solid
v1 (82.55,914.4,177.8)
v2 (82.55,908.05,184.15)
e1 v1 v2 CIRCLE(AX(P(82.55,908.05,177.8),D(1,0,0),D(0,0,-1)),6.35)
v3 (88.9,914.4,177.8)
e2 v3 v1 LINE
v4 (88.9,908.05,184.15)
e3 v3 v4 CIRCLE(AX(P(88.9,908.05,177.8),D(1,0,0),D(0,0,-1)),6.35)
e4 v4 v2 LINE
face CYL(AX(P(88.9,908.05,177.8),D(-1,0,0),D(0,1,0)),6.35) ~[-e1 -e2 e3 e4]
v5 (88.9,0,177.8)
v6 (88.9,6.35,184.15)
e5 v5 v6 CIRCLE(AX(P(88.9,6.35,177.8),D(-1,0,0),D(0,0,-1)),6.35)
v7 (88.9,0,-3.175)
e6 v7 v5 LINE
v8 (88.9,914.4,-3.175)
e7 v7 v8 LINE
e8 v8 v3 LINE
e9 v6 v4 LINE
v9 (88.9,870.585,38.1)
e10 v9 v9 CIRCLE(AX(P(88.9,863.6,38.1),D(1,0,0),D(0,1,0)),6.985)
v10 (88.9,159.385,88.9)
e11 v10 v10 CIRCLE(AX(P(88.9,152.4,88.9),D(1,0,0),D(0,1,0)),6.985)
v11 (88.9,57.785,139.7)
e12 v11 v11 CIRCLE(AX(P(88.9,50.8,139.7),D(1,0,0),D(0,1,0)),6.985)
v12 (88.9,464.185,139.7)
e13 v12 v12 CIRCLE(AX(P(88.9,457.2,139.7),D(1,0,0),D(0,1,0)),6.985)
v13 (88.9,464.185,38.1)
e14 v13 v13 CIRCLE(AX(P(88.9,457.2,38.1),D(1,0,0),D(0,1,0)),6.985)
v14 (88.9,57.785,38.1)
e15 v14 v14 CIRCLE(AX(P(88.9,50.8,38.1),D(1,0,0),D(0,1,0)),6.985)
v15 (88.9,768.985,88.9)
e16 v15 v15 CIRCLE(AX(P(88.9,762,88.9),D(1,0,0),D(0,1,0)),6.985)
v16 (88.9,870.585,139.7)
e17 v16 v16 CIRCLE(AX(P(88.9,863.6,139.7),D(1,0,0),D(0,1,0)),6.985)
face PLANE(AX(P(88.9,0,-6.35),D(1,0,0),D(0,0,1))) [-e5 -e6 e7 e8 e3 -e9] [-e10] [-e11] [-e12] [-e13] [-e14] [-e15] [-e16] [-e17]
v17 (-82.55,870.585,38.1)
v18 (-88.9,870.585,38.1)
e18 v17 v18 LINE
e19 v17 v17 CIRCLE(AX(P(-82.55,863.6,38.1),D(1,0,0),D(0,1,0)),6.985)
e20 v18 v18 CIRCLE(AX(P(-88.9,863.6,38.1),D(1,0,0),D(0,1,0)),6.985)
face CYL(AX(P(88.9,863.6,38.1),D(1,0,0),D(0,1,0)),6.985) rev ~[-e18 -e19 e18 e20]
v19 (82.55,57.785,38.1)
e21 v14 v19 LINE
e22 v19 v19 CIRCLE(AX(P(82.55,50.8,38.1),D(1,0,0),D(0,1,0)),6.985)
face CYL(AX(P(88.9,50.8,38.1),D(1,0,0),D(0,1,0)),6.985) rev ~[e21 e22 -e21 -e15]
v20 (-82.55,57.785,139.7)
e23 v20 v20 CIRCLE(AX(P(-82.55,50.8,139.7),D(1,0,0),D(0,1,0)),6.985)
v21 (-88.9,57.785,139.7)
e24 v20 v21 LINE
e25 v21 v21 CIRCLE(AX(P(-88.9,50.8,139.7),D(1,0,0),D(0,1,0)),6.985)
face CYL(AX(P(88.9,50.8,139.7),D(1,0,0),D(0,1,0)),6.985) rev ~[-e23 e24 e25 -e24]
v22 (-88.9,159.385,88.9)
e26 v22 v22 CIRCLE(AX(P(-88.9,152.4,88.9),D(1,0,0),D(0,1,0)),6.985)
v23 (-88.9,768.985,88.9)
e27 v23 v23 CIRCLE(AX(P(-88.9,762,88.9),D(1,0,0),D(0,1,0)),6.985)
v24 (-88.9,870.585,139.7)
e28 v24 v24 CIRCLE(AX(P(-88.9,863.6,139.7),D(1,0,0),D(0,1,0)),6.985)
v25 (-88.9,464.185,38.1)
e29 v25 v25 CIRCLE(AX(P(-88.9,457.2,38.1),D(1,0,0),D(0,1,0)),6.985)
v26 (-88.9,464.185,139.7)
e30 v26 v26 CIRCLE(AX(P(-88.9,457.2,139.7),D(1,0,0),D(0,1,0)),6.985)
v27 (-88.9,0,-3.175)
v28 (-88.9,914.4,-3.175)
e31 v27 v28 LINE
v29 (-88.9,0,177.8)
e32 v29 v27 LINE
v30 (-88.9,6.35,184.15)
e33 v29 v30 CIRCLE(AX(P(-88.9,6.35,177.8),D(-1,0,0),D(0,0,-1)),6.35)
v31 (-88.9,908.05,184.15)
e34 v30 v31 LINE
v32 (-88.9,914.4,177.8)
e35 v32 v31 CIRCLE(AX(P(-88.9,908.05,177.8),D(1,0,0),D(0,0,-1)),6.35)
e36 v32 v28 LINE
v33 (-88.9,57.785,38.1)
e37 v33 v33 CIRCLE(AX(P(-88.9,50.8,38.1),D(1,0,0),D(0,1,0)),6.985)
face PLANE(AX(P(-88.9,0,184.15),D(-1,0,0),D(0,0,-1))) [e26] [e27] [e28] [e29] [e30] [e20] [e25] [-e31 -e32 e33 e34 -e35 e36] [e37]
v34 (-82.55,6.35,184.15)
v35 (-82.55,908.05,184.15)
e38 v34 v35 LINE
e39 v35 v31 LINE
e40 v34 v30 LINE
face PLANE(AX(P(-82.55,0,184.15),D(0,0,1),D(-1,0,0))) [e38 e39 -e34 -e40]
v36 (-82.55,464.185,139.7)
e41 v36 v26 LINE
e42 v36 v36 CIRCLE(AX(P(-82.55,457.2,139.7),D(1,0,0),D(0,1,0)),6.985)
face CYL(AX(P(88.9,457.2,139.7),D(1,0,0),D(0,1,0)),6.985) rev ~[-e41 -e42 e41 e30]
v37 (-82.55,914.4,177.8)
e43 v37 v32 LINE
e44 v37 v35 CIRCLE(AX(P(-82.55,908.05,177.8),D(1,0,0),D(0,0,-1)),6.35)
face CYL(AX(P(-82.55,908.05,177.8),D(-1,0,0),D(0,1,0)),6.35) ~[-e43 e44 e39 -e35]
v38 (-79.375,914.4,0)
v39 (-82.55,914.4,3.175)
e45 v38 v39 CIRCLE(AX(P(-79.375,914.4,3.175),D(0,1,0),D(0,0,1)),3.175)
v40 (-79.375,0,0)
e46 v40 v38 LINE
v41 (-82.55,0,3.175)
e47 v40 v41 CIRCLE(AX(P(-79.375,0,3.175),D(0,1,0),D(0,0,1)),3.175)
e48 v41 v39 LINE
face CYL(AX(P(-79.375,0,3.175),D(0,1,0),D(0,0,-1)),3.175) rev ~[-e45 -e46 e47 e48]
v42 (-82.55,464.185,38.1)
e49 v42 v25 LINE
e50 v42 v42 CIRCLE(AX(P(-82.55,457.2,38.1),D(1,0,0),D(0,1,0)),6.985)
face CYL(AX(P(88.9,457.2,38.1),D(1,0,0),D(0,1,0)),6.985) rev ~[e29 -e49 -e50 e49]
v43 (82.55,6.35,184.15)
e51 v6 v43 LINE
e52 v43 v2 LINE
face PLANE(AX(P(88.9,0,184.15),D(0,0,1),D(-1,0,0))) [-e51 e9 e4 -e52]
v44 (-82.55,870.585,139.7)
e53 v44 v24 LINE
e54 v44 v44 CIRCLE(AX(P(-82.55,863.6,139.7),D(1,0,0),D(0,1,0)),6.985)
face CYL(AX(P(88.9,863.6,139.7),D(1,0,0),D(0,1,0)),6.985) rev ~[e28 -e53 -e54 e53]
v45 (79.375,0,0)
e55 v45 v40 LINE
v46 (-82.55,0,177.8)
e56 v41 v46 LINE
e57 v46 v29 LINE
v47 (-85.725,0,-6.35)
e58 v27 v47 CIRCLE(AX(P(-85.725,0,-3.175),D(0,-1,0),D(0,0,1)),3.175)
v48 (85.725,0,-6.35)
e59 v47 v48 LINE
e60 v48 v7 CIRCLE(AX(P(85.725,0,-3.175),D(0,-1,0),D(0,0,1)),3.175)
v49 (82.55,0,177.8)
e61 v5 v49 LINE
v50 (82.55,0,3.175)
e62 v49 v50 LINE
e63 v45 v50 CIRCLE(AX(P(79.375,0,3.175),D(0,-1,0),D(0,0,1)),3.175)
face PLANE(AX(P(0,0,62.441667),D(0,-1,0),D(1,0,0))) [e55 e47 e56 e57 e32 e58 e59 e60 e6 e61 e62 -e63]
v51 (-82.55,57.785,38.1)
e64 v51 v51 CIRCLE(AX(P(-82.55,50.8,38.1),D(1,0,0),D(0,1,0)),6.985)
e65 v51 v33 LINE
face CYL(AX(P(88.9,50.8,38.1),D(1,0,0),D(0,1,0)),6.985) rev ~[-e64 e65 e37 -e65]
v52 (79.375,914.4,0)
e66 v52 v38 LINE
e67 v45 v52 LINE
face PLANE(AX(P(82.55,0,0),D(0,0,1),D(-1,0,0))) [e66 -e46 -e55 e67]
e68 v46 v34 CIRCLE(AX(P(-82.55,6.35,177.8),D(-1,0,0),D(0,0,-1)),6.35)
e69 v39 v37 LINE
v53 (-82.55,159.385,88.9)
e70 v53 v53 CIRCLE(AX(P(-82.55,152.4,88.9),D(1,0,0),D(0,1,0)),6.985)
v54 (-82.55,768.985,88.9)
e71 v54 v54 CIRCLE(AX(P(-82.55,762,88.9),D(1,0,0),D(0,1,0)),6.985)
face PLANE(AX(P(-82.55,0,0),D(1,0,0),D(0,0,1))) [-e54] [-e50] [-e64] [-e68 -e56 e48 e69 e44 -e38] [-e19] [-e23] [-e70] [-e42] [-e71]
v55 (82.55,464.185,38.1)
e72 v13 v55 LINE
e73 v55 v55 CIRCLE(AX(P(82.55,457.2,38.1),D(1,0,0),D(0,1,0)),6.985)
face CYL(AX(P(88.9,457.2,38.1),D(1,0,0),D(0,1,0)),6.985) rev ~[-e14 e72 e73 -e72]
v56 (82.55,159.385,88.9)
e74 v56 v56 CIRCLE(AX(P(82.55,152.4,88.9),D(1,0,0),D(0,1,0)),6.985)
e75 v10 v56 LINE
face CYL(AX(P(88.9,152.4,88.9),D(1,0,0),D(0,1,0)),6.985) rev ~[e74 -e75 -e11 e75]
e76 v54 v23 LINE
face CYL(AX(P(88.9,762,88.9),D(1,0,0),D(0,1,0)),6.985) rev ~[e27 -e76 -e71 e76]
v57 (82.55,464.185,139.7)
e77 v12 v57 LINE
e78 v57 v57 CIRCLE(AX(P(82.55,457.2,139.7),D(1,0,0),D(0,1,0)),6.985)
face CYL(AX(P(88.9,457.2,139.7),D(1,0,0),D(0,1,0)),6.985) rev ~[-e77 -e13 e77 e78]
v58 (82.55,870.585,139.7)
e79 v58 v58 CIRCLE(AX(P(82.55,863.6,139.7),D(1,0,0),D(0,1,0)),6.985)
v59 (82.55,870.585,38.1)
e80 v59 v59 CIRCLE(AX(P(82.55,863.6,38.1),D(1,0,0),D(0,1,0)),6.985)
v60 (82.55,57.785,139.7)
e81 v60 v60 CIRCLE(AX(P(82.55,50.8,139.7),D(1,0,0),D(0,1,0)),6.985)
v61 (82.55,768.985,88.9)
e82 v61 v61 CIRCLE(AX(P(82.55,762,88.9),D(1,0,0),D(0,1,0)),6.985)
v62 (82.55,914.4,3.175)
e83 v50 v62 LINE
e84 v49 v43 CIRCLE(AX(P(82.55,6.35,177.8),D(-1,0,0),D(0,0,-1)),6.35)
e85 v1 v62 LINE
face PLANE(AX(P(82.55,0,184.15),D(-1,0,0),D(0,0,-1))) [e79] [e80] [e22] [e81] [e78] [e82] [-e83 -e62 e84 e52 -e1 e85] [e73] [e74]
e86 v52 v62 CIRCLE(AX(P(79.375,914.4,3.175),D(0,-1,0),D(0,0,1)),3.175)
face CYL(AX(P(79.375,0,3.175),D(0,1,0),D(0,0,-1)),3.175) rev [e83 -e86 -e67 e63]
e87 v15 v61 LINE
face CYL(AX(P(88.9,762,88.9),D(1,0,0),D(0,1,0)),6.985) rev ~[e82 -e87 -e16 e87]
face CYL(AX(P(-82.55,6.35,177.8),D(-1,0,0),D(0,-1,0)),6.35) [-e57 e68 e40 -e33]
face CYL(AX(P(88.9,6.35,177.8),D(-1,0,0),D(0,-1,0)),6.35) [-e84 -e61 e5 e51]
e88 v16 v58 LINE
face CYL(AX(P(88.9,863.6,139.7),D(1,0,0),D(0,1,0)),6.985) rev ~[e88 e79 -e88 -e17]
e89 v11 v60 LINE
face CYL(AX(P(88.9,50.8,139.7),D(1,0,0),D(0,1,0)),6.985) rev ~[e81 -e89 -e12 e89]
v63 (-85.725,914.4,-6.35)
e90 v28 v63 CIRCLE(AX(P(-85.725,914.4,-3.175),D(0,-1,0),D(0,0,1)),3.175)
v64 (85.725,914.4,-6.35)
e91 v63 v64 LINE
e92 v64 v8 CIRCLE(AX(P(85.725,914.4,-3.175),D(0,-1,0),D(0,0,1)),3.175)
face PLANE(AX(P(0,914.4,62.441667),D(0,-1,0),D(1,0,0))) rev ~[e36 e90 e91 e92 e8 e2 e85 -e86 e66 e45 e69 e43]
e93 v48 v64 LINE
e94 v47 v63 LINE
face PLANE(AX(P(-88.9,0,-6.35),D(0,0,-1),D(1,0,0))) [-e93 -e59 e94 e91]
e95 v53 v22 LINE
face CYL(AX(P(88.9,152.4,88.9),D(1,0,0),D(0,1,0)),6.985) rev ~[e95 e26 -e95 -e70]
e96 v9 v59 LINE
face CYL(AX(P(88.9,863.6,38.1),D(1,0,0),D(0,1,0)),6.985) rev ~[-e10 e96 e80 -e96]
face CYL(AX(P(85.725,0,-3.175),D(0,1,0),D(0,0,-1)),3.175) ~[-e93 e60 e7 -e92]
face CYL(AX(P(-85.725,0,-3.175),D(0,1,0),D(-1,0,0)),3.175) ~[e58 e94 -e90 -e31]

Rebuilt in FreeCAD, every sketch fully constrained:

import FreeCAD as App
import Part
import Sketcher
from FreeCAD import Vector
Q = App.Units.Quantity


def edges_at(feature, points):
    """Names of the edges that pass closest to the given points."""
    edges = feature.Shape.Edges
    near = lambda p: min(range(len(edges)), key=lambda i: edges[i].distToShape(Part.Vertex(*p))[0])
    return sorted({f"Edge{near(p) + 1}" for p in points})

doc = App.newDocument("Part")
body = doc.addObject("PartDesign::Body", "Body")

sketch1 = body.newObject("Sketcher::SketchObject", "Sketch")
sketch1.AttachmentSupport = (doc.getObject("XZ_Plane"), [""])
sketch1.MapMode = "FlatFace"
sketch1.addGeometry([
    Part.LineSegment(Vector(83, 0, 0), Vector(-83, 0, 0)),
    Part.LineSegment(Vector(-83, 0, 0), Vector(-83, 184, 0)),
    Part.LineSegment(Vector(-83, 184, 0), Vector(-89, 184, 0)),
    Part.LineSegment(Vector(-89, 184, 0), Vector(-89, -6, 0)),
    Part.LineSegment(Vector(-89, -6, 0), Vector(89, -6, 0)),
    Part.LineSegment(Vector(89, -6, 0), Vector(89, 184, 0)),
    Part.LineSegment(Vector(89, 184, 0), Vector(83, 184, 0)),
    Part.LineSegment(Vector(83, 184, 0), Vector(83, 0, 0)),
], False)
sketch1.addConstraint([
    Sketcher.Constraint("Coincident", 0, 2, 1, 1),
    Sketcher.Constraint("Coincident", 1, 2, 2, 1),
    Sketcher.Constraint("Coincident", 2, 2, 3, 1),
    Sketcher.Constraint("Coincident", 3, 2, 4, 1),
    Sketcher.Constraint("Coincident", 4, 2, 5, 1),
    Sketcher.Constraint("Coincident", 5, 2, 6, 1),
    Sketcher.Constraint("Coincident", 6, 2, 7, 1),
    Sketcher.Constraint("Coincident", 7, 2, 0, 1),
    Sketcher.Constraint("Horizontal", 0),
    Sketcher.Constraint("Vertical", 1),
    Sketcher.Constraint("Horizontal", 2),
    Sketcher.Constraint("Vertical", 3),
    Sketcher.Constraint("Horizontal", 4),
    Sketcher.Constraint("Vertical", 5),
    Sketcher.Constraint("Horizontal", 6),
    Sketcher.Constraint("Vertical", 7),
    Sketcher.Constraint("Symmetric", 0, 2, 7, 2, -1, 1),
    Sketcher.Constraint("Symmetric", 2, 2, 5, 2, -2),
    Sketcher.Constraint("DistanceX", 4, 1, 4, 2, Q("7 in")),
    Sketcher.Constraint("DistanceX", 0, 2, 0, 1, Q("6.5 in")),
    Sketcher.Constraint("DistanceY", 3, 2, 3, 1, Q("7.5 in")),
    Sketcher.Constraint("DistanceY", 1, 1, 1, 2, Q("7.25 in")),
])
pad1 = body.newObject("PartDesign::Pad", "Pad")
pad1.Profile = sketch1
pad1.Length = Q("36 in")
pad1.Reversed = True

sketch2 = body.newObject("Sketcher::SketchObject", "Sketch001")
sketch2.AttachmentSupport = (doc.getObject("YZ_Plane"), [""])
sketch2.MapMode = "FlatFace"
sketch2.AttachmentOffset = App.Placement(Vector(0, 0, 3.5 * 25.4), App.Rotation())
sketch2.addGeometry([
    Part.Circle(Vector(51, 140, 0), Vector(0, 0, 1), 7),
    Part.Circle(Vector(152, 89, 0), Vector(0, 0, 1), 7),
    Part.Circle(Vector(457, 140, 0), Vector(0, 0, 1), 7),
    Part.Circle(Vector(51, 38, 0), Vector(0, 0, 1), 7),
    Part.Circle(Vector(457, 38, 0), Vector(0, 0, 1), 7),
    Part.Circle(Vector(762, 89, 0), Vector(0, 0, 1), 7),
    Part.Circle(Vector(864, 38, 0), Vector(0, 0, 1), 7),
    Part.Circle(Vector(864, 140, 0), Vector(0, 0, 1), 7),
], False)
sketch2.addConstraint([
    Sketcher.Constraint("Equal", 0, 1),
    Sketcher.Constraint("Equal", 1, 2),
    Sketcher.Constraint("Equal", 2, 3),
    Sketcher.Constraint("Equal", 3, 4),
    Sketcher.Constraint("Equal", 4, 5),
    Sketcher.Constraint("Equal", 5, 6),
    Sketcher.Constraint("Equal", 6, 7),
    Sketcher.Constraint("Horizontal", 0, 3, 2, 3),
    Sketcher.Constraint("Horizontal", 3, 3, 4, 3),
    Sketcher.Constraint("Horizontal", 1, 3, 5, 3),
    Sketcher.Constraint("Horizontal", 4, 3, 6, 3),
    Sketcher.Constraint("Horizontal", 2, 3, 7, 3),
    Sketcher.Constraint("Vertical", 0, 3, 3, 3),
    Sketcher.Constraint("Vertical", 2, 3, 4, 3),
    Sketcher.Constraint("Vertical", 6, 3, 7, 3),
    Sketcher.Constraint("Diameter", 0, Q("0.55 in")),
    Sketcher.Constraint("DistanceX", -1, 1, 0, 3, Q("2 in")),
    Sketcher.Constraint("DistanceX", -1, 1, 1, 3, Q("6 in")),
    Sketcher.Constraint("DistanceX", -1, 1, 2, 3, Q("18 in")),
    Sketcher.Constraint("DistanceX", -1, 1, 5, 3, Q("30 in")),
    Sketcher.Constraint("DistanceX", -1, 1, 6, 3, Q("34 in")),
    Sketcher.Constraint("DistanceY", 1, 3, 0, 3, Q("2 in")),
    Sketcher.Constraint("DistanceY", 3, 3, 0, 3, Q("4 in")),
    Sketcher.Constraint("DistanceY", -1, 1, 0, 3, Q("5.5 in")),
])
pocket1 = body.newObject("PartDesign::Pocket", "Pocket")
pocket1.Profile = sketch2
pocket1.Type = "ThroughAll"
doc.recompute()

fillet = body.newObject("PartDesign::Fillet", "Fillet")
fillet.Base = (pocket1, edges_at(pocket1, [
    (88.9, 457.2, -6.35),
    (-88.9, 457.2, -6.35),
    (-82.55, 457.2, 0),
    (82.55, 457.2, 0),
]))
fillet.Radius = Q("0.125 in")
doc.recompute()

fillet2 = body.newObject("PartDesign::Fillet", "Fillet001")
fillet2.Base = (fillet, edges_at(fillet, [
    (-85.725, 0, 184.15),
    (85.725, 0, 184.15),
    (85.725, 914.4, 184.15),
    (-85.725, 914.4, 184.15),
]))
fillet2.Radius = Q("0.25 in")

doc.recompute()
